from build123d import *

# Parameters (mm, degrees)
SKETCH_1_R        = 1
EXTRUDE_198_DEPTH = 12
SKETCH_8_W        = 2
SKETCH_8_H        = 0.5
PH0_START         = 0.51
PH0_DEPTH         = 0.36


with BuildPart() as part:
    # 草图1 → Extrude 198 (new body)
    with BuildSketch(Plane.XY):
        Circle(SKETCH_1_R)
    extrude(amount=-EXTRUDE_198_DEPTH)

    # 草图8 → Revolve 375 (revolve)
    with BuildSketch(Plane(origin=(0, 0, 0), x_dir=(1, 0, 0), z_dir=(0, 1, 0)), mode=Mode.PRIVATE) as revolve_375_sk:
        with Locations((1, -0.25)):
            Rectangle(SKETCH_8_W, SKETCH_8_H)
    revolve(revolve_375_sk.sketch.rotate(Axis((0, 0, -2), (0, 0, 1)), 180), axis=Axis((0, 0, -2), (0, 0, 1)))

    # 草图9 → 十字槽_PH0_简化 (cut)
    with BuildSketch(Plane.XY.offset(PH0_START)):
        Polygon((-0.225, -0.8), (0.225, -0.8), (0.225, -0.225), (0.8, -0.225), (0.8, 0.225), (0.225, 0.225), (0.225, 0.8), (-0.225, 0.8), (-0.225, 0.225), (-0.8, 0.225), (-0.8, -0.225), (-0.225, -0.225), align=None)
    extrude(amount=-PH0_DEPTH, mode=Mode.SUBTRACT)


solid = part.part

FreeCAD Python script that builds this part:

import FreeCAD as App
import Part
import Sketcher


def add_polygon(sketch, points):
    """Adds a closed chain of lines whose ends are joined by coincident constraints."""
    first, n = sketch.GeometryCount, len(points)
    for a, b in zip(points, points[1:] + points[:1]):
        sketch.addGeometry(Part.LineSegment(App.Vector(*a, 0), App.Vector(*b, 0)), False)
    for i in range(n):
        sketch.addConstraint(Sketcher.Constraint("Coincident", first + i, 2, first + (i + 1) % n, 1))

doc = App.newDocument("Part")
params = doc.addObject("Spreadsheet::Sheet", "Params")
for row, (alias, value) in enumerate([
    ("sketch1_diameter", "2 mm"),
    ("pad1_length", "12 mm"),
    ("sketch2_width", "2 mm"),
    ("sketch2_height", "0.5 mm"),
    ("revolution_angle", "360 deg"),
    ("sketch3_width", "0.45 mm"),
    ("pocket1_length", "0.36 mm"),
], start=1):
    params.set(f"A{row}", alias)
    params.set(f"B{row}", "=" + value)
    params.setAlias(f"B{row}", alias)

body = doc.addObject("PartDesign::Body", "Body")

# Sketch on XY plane
sketch1 = body.newObject("Sketcher::SketchObject", "Sketch")
sketch1.AttachmentSupport = (doc.getObject("XY_Plane"), [""])
sketch1.MapMode = "FlatFace"
sketch1.addGeometry(Part.Circle(App.Vector(0, 0, 0), App.Vector(0, 0, 1), 1), False)
sketch1.addConstraint([
    Sketcher.Constraint("Coincident", 0, 3, -1, 1),
    Sketcher.Constraint("Diameter", 0, 2.0),
])
sketch1.setExpression("Constraints[1]", "Params.sketch1_diameter")
pad1 = body.newObject("PartDesign::Pad", "Pad")
pad1.Profile = sketch1
pad1.setExpression("Length", "Params.pad1_length")
pad1.Reversed = True

# Sketch on XZ plane
sketch2 = body.newObject("Sketcher::SketchObject", "Sketch001")
sketch2.AttachmentSupport = (doc.getObject("XZ_Plane"), [""])
sketch2.MapMode = "FlatFace"
add_polygon(sketch2, [(0, 0), (0, 0.5), (2, 0.5), (2, 0)])  # lines 0-3
sketch2.addConstraint([
    Sketcher.Constraint("Vertical", 0),
    Sketcher.Constraint("Horizontal", 1),
    Sketcher.Constraint("Vertical", 2),
    Sketcher.Constraint("Horizontal", 3),
    Sketcher.Constraint("Coincident", 3, 2, -1, 1),
    Sketcher.Constraint("DistanceX", 1, 1, 1, 2, 2.0),
    Sketcher.Constraint("DistanceY", 0, 1, 0, 2, 0.5),
])
sketch2.setExpression("Constraints[9]", "Params.sketch2_width")
sketch2.setExpression("Constraints[10]", "Params.sketch2_height")
revolution = body.newObject("PartDesign::Revolution", "Revolution")
revolution.Profile = sketch2
revolution.ReferenceAxis = (sketch2, ["V_Axis"])
revolution.setExpression("Angle", "Params.revolution_angle")

# Sketch on XY plane
sketch3 = body.newObject("Sketcher::SketchObject", "Sketch002")
sketch3.AttachmentSupport = (doc.getObject("XY_Plane"), [""])
sketch3.MapMode = "FlatFace"
sketch3.AttachmentOffset = App.Placement(App.Vector(0, 0, 0.51), App.Rotation())
add_polygon(sketch3, [(-0.23, -0.8), (0.23, -0.8), (0.23, -0.23), (0.8, -0.23), (0.8, 0.23), (0.23, 0.23), (0.23, 0.8), (-0.23, 0.8), (-0.23, 0.23), (-0.8, 0.23), (-0.8, -0.23), (-0.23, -0.23)])  # lines 0-11
sketch3.addConstraint([
    Sketcher.Constraint("Horizontal", 0),
    Sketcher.Constraint("Vertical", 1),
    Sketcher.Constraint("Horizontal", 2),
    Sketcher.Constraint("Vertical", 3),
    Sketcher.Constraint("Horizontal", 4),
    Sketcher.Constraint("Vertical", 5),
    Sketcher.Constraint("Horizontal", 6),
    Sketcher.Constraint("Vertical", 7),
    Sketcher.Constraint("Horizontal", 8),
    Sketcher.Constraint("Vertical", 9),
    Sketcher.Constraint("Horizontal", 10),
    Sketcher.Constraint("Vertical", 11),
    Sketcher.Constraint("Symmetric", 0, 2, 6, 2, -1, 1),
    Sketcher.Constraint("Symmetric", 2, 2, 8, 2, -1, 1),
    Sketcher.Constraint("Symmetric", 4, 2, 10, 2, -1, 1),
    Sketcher.Constraint("Symmetric", 4, 2, 7, 2, -2),
    Sketcher.Constraint("Equal", 10, 1),
    Sketcher.Constraint("Equal", 6, 3),
    Sketcher.Constraint("DistanceX", 0, 1, 0, 2, 0.45),
    Sketcher.Constraint("DistanceY", 0, 2, -1, 1, 0.8),
])
sketch3.setExpression("Constraints[30]", "Params.sketch3_width")
pocket1 = body.newObject("PartDesign::Pocket", "Pocket")
pocket1.Profile = sketch3
pocket1.setExpression("Length", "Params.pocket1_length")

doc.recompute()
